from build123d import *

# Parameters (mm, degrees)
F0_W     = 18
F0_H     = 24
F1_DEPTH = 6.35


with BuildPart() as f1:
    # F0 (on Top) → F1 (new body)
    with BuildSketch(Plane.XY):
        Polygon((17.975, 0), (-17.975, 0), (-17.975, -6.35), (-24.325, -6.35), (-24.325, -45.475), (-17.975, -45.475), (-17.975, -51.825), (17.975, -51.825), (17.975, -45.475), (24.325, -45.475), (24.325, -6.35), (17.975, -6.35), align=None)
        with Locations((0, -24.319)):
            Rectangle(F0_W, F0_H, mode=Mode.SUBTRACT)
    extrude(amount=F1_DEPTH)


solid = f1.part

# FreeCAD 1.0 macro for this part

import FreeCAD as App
import Part
import Sketcher
from FreeCAD import Vector
Q = App.Units.Quantity


def add_polygon(sketch, points):
    """Adds a closed chain of lines whose ends are joined by coincident constraints."""
    first, n = sketch.GeometryCount, len(points)
    for a, b in zip(points, points[1:] + points[:1]):
        sketch.addGeometry(Part.LineSegment(App.Vector(*a, 0), App.Vector(*b, 0)), False)
    for i in range(n):
        sketch.addConstraint(Sketcher.Constraint("Coincident", first + i, 2, first + (i + 1) % n, 1))

doc = App.newDocument("Part")
params = doc.addObject("Spreadsheet::Sheet", "Params")
for row, (alias, value) in enumerate([
    ("sketch1_width", "18 mm"),
    ("sketch1_height", "24 mm"),
    ("sketch1_width2", "35.95 mm"),
    ("sketch1_width3", "6.35 mm"),
    ("pad1_length", "6.35 mm"),
], start=1):
    params.set(f"A{row}", alias)
    params.set(f"B{row}", "=" + value)
    params.setAlias(f"B{row}", alias)

body = doc.addObject("PartDesign::Body", "Body")

# Sketch on XY plane
sketch1 = body.newObject("Sketcher::SketchObject", "Sketch")
sketch1.AttachmentSupport = (doc.getObject("XY_Plane"), [""])
sketch1.MapMode = "FlatFace"
add_polygon(sketch1, [(18, 0), (-18, 0), (-18, -6), (-24, -6), (-24, -45), (-18, -45), (-18, -52), (18, -52), (18, -45), (24, -45), (24, -6), (18, -6)])  # lines 0-11
add_polygon(sketch1, [(9, -36), (-9, -36), (-9, -12), (9, -12)])  # lines 12-15
sketch1.addConstraint([
    Sketcher.Constraint("Horizontal", 0),
    Sketcher.Constraint("Vertical", 1),
    Sketcher.Constraint("Horizontal", 2),
    Sketcher.Constraint("Vertical", 3),
    Sketcher.Constraint("Horizontal", 4),
    Sketcher.Constraint("Vertical", 5),
    Sketcher.Constraint("Horizontal", 6),
    Sketcher.Constraint("Vertical", 7),
    Sketcher.Constraint("Horizontal", 8),
    Sketcher.Constraint("Vertical", 9),
    Sketcher.Constraint("Horizontal", 10),
    Sketcher.Constraint("Vertical", 11),
    Sketcher.Constraint("Horizontal", 12),
    Sketcher.Constraint("Vertical", 13),
    Sketcher.Constraint("Horizontal", 14),
    Sketcher.Constraint("Vertical", 15),
    Sketcher.Constraint("Symmetric", 0, 2, 11, 2, -1, 1),
    Sketcher.Constraint("Symmetric", 4, 2, 7, 2, -2),
    Sketcher.Constraint("Symmetric", 2, 2, 9, 2, -2),
    Sketcher.Constraint("Vertical", 1, 2, 4, 2),
    Sketcher.Constraint("Equal", 10, 1),
    Sketcher.Constraint("Equal", 1, 5),
    Sketcher.Constraint("DistanceX", 12, 2, 12, 1, Q("18 mm")),
    Sketcher.Constraint("DistanceY", 13, 1, 13, 2, Q("24 mm")),
    Sketcher.Constraint("DistanceX", 12, 2, -1, 1, Q("9 mm")),
    Sketcher.Constraint("DistanceX", 0, 2, 0, 1, Q("35.95 mm")),
    Sketcher.Constraint("DistanceX", 2, 2, 2, 1, Q("6.35 mm")),
    Sketcher.Constraint("DistanceY", 3, 2, 3, 1, Q("39.125 mm")),
    Sketcher.Constraint("DistanceY", 12, 2, -1, 1, Q("36.319 mm")),
])
sketch1.setExpression("Constraints[38]", "Params.sketch1_width")
sketch1.setExpression("Constraints[39]", "Params.sketch1_height")
sketch1.setExpression("Constraints[41]", "Params.sketch1_width2")
sketch1.setExpression("Constraints[42]", "Params.sketch1_width3")
pad1 = body.newObject("PartDesign::Pad", "Pad")
pad1.Profile = sketch1
pad1.setExpression("Length", "Params.pad1_length")

doc.recompute()
